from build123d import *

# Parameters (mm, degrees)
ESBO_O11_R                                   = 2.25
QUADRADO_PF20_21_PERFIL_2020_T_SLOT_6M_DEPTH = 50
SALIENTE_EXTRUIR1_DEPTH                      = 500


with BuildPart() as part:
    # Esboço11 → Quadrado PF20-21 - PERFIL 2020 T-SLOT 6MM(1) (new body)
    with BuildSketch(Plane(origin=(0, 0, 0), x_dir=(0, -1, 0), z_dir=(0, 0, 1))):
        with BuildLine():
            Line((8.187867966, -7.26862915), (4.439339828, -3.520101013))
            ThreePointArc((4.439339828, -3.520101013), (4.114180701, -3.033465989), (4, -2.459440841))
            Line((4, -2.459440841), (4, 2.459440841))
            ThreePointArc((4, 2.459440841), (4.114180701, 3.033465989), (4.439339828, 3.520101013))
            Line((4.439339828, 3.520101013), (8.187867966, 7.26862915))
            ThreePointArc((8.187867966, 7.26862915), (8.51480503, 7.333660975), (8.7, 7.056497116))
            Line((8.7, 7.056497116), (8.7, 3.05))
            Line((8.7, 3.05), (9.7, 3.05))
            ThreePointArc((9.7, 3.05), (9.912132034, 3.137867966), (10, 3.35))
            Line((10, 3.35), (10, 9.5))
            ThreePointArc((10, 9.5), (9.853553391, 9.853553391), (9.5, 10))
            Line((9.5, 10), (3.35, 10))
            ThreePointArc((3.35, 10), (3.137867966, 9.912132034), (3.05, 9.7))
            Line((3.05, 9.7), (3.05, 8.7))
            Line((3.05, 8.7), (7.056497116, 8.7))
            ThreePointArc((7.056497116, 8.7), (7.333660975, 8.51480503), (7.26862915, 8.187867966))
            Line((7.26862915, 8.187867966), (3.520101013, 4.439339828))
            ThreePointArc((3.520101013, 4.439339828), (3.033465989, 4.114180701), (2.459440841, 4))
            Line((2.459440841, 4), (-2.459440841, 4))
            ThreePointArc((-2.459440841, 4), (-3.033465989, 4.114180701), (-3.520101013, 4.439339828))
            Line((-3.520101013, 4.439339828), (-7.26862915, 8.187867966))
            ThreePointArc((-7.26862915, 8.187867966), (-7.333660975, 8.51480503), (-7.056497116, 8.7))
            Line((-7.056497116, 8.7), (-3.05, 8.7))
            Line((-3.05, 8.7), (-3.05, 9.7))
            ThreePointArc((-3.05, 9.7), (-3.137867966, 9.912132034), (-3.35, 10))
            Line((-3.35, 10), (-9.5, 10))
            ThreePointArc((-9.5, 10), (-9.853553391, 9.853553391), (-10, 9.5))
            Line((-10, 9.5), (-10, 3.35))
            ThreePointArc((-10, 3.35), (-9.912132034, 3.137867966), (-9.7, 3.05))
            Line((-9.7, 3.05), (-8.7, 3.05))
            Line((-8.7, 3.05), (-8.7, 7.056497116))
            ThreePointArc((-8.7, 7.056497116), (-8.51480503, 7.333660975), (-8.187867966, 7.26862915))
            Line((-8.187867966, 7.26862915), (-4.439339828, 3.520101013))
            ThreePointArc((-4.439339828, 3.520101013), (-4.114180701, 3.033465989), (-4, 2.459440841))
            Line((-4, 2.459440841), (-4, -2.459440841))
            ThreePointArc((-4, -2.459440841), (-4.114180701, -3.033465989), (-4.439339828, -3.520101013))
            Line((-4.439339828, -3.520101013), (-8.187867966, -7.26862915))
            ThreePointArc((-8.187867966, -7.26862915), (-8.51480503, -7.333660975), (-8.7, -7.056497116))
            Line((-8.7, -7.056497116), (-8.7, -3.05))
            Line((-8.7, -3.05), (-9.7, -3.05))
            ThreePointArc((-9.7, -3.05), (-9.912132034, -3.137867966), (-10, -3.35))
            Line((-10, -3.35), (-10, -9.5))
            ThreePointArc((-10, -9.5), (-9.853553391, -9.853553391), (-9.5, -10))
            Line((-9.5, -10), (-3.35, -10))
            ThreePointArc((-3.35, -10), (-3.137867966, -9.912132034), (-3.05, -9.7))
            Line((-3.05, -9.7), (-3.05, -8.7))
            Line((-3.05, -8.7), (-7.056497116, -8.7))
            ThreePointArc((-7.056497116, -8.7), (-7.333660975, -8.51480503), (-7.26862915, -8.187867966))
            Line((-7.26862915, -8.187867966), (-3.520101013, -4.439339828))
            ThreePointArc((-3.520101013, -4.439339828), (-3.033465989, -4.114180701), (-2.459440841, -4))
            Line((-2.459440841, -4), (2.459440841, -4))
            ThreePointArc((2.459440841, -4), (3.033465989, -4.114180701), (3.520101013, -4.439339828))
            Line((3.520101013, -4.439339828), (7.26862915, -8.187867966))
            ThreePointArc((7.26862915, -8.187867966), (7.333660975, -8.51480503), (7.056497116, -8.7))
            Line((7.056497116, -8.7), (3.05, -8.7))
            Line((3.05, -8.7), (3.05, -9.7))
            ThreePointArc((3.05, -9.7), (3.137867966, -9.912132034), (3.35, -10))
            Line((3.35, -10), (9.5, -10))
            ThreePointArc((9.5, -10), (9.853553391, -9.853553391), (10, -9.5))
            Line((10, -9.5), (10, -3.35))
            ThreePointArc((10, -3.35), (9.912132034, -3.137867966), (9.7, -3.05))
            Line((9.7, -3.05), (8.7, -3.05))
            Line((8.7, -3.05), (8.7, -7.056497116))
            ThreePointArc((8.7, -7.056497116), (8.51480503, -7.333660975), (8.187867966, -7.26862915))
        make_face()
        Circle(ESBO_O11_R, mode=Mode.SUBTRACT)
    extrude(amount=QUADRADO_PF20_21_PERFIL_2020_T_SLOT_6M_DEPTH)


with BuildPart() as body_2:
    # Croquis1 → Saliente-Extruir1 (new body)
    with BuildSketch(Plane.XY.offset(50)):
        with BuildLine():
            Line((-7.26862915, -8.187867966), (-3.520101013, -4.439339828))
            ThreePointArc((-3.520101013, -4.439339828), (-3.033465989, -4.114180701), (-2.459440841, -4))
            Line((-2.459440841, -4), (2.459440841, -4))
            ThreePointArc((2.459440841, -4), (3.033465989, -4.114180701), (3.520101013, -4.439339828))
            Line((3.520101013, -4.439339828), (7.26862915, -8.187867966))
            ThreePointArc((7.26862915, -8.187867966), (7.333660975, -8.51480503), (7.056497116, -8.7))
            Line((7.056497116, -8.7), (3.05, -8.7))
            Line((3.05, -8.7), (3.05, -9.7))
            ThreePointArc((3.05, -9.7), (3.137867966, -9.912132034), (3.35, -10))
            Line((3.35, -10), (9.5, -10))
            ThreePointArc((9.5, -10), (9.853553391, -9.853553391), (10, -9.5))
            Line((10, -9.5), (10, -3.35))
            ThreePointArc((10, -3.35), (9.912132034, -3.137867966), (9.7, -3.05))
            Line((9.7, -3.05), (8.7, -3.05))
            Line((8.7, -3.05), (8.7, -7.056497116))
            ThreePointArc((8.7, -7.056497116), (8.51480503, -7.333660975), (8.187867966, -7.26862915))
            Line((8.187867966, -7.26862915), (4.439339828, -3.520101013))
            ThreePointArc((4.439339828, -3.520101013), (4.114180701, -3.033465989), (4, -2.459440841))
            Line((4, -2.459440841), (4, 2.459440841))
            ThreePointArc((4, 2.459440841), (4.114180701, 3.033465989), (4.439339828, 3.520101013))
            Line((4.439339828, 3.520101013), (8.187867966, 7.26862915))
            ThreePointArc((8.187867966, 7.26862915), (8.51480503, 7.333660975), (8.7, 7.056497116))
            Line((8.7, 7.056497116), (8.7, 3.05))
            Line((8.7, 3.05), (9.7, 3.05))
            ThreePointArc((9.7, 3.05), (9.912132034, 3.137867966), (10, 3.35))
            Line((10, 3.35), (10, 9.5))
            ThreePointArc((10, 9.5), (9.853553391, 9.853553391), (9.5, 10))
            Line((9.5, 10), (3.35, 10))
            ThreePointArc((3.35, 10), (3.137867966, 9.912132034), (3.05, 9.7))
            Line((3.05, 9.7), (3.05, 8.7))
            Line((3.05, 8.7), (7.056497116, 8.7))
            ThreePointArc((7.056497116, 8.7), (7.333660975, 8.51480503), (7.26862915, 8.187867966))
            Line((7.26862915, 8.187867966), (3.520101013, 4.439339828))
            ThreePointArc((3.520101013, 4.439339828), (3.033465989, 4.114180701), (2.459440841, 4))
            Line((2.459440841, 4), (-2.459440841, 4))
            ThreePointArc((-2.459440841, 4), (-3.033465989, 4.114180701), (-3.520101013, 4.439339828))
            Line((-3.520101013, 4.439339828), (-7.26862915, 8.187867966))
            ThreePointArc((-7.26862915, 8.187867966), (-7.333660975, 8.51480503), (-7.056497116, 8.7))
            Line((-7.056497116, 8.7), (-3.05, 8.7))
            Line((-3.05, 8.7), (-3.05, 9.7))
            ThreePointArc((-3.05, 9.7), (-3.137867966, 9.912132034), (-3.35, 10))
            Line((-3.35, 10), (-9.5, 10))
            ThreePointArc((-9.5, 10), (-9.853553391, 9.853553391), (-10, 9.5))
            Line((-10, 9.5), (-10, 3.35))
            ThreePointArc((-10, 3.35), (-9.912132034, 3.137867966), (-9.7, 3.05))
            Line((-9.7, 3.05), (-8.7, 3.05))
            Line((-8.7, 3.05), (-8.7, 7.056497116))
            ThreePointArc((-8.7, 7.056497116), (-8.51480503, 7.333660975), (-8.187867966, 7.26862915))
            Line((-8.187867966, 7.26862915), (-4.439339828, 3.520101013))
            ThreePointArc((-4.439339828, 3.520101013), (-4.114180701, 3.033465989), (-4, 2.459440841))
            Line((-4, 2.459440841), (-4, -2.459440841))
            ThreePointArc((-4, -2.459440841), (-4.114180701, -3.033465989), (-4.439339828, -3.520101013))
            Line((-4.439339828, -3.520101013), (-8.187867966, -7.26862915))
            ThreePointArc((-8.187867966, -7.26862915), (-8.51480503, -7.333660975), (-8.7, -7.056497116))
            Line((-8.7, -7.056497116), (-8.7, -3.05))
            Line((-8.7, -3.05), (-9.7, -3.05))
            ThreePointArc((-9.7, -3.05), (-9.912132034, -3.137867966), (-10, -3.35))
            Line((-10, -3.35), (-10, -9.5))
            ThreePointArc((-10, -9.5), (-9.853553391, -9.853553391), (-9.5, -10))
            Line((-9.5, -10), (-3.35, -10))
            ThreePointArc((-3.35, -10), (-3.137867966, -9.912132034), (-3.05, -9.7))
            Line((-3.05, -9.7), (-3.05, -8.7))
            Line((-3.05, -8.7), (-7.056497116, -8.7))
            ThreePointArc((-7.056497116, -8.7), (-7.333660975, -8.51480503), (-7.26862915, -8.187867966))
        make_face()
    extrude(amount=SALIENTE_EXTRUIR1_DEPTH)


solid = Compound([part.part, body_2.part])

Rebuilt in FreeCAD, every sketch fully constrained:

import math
import FreeCAD as App
import Part
import Sketcher
from FreeCAD import Vector
Q = App.Units.Quantity

doc = App.newDocument("Part")
body = doc.addObject("PartDesign::Body", "Body")

# Sketch on XY plane
sketch1 = body.newObject("Sketcher::SketchObject", "Sketch")
sketch1.AttachmentSupport = (doc.getObject("XY_Plane"), [""])
sketch1.MapMode = "FlatFace"
sketch1.addGeometry([
    Part.LineSegment(Vector(-7.27, -8.19, 0), Vector(-3.52, -4.44, 0)),  # 0
    Part.ArcOfCircle(Part.Circle(Vector(-2.46, -5.5, 0), Vector(0, 0, 1), 1.5), math.radians(90), math.radians(135)),  # 1
    Part.LineSegment(Vector(-2.46, -4, 0), Vector(2.46, -4, 0)),  # 2
    Part.ArcOfCircle(Part.Circle(Vector(2.46, -5.5, 0), Vector(0, 0, 1), 1.5), math.radians(45), math.radians(90)),  # 3
    Part.LineSegment(Vector(3.52, -4.44, 0), Vector(7.27, -8.19, 0)),  # 4
    Part.ArcOfCircle(Part.Circle(Vector(7.06, -8.4, 0), Vector(0, 0, 1), 0.3), math.radians(-90), math.radians(45)),  # 5
    Part.LineSegment(Vector(7.06, -8.7, 0), Vector(3.05, -8.7, 0)),  # 6
    Part.LineSegment(Vector(3.05, -8.7, 0), Vector(3.05, -9.7, 0)),  # 7
    Part.ArcOfCircle(Part.Circle(Vector(3.35, -9.7, 0), Vector(0, 0, 1), 0.3), math.radians(-180), math.radians(-90)),  # 8
    Part.LineSegment(Vector(3.35, -10, 0), Vector(9.5, -10, 0)),  # 9
    Part.ArcOfCircle(Part.Circle(Vector(9.5, -9.5, 0), Vector(0, 0, 1), 0.5), math.radians(-90), math.radians(0)),  # 10
    Part.LineSegment(Vector(10, -9.5, 0), Vector(10, -3.35, 0)),  # 11
    Part.ArcOfCircle(Part.Circle(Vector(9.7, -3.35, 0), Vector(0, 0, 1), 0.3), math.radians(0), math.radians(90)),  # 12
    Part.LineSegment(Vector(9.7, -3.05, 0), Vector(8.7, -3.05, 0)),  # 13
    Part.LineSegment(Vector(8.7, -3.05, 0), Vector(8.7, -7.06, 0)),  # 14
    Part.ArcOfCircle(Part.Circle(Vector(8.4, -7.06, 0), Vector(0, 0, 1), 0.3), math.radians(-135), math.radians(0)),  # 15
    Part.LineSegment(Vector(8.19, -7.27, 0), Vector(4.44, -3.52, 0)),  # 16
    Part.ArcOfCircle(Part.Circle(Vector(5.5, -2.46, 0), Vector(0, 0, 1), 1.5), math.radians(180), math.radians(225)),  # 17
    Part.LineSegment(Vector(4, -2.46, 0), Vector(4, 2.46, 0)),  # 18
    Part.ArcOfCircle(Part.Circle(Vector(5.5, 2.46, 0), Vector(0, 0, 1), 1.5), math.radians(135), math.radians(180)),  # 19
    Part.LineSegment(Vector(4.44, 3.52, 0), Vector(8.19, 7.27, 0)),  # 20
    Part.ArcOfCircle(Part.Circle(Vector(8.4, 7.06, 0), Vector(0, 0, 1), 0.3), math.radians(0), math.radians(135)),  # 21
    Part.LineSegment(Vector(8.7, 7.06, 0), Vector(8.7, 3.05, 0)),  # 22
    Part.LineSegment(Vector(8.7, 3.05, 0), Vector(9.7, 3.05, 0)),  # 23
    Part.ArcOfCircle(Part.Circle(Vector(9.7, 3.35, 0), Vector(0, 0, 1), 0.3), math.radians(-90), math.radians(0)),  # 24
    Part.LineSegment(Vector(10, 3.35, 0), Vector(10, 9.5, 0)),  # 25
    Part.ArcOfCircle(Part.Circle(Vector(9.5, 9.5, 0), Vector(0, 0, 1), 0.5), math.radians(0), math.radians(90)),  # 26
    Part.LineSegment(Vector(9.5, 10, 0), Vector(3.35, 10, 0)),  # 27
    Part.ArcOfCircle(Part.Circle(Vector(3.35, 9.7, 0), Vector(0, 0, 1), 0.3), math.radians(90), math.radians(180)),  # 28
    Part.LineSegment(Vector(3.05, 9.7, 0), Vector(3.05, 8.7, 0)),  # 29
    Part.LineSegment(Vector(3.05, 8.7, 0), Vector(7.06, 8.7, 0)),  # 30
    Part.ArcOfCircle(Part.Circle(Vector(7.06, 8.4, 0), Vector(0, 0, 1), 0.3), math.radians(-45), math.radians(90)),  # 31
    Part.LineSegment(Vector(7.27, 8.19, 0), Vector(3.52, 4.44, 0)),  # 32
    Part.ArcOfCircle(Part.Circle(Vector(2.46, 5.5, 0), Vector(0, 0, 1), 1.5), math.radians(-90), math.radians(-45)),  # 33
    Part.LineSegment(Vector(2.46, 4, 0), Vector(-2.46, 4, 0)),  # 34
    Part.ArcOfCircle(Part.Circle(Vector(-2.46, 5.5, 0), Vector(0, 0, 1), 1.5), math.radians(-135), math.radians(-90)),  # 35
    Part.LineSegment(Vector(-3.52, 4.44, 0), Vector(-7.27, 8.19, 0)),  # 36
    Part.ArcOfCircle(Part.Circle(Vector(-7.06, 8.4, 0), Vector(0, 0, 1), 0.3), math.radians(90), math.radians(225)),  # 37
    Part.LineSegment(Vector(-7.06, 8.7, 0), Vector(-3.05, 8.7, 0)),  # 38
    Part.LineSegment(Vector(-3.05, 8.7, 0), Vector(-3.05, 9.7, 0)),  # 39
    Part.ArcOfCircle(Part.Circle(Vector(-3.35, 9.7, 0), Vector(0, 0, 1), 0.3), math.radians(0), math.radians(90)),  # 40
    Part.LineSegment(Vector(-3.35, 10, 0), Vector(-9.5, 10, 0)),  # 41
    Part.ArcOfCircle(Part.Circle(Vector(-9.5, 9.5, 0), Vector(0, 0, 1), 0.5), math.radians(90), math.radians(180)),  # 42
    Part.LineSegment(Vector(-10, 9.5, 0), Vector(-10, 3.35, 0)),  # 43
    Part.ArcOfCircle(Part.Circle(Vector(-9.7, 3.35, 0), Vector(0, 0, 1), 0.3), math.radians(-180), math.radians(-90)),  # 44
    Part.LineSegment(Vector(-9.7, 3.05, 0), Vector(-8.7, 3.05, 0)),  # 45
    Part.LineSegment(Vector(-8.7, 3.05, 0), Vector(-8.7, 7.06, 0)),  # 46
    Part.ArcOfCircle(Part.Circle(Vector(-8.4, 7.06, 0), Vector(0, 0, 1), 0.3), math.radians(45), math.radians(180)),  # 47
    Part.LineSegment(Vector(-8.19, 7.27, 0), Vector(-4.44, 3.52, 0)),  # 48
    Part.ArcOfCircle(Part.Circle(Vector(-5.5, 2.46, 0), Vector(0, 0, 1), 1.5), math.radians(0), math.radians(45)),  # 49
    Part.LineSegment(Vector(-4, 2.46, 0), Vector(-4, -2.46, 0)),  # 50
    Part.ArcOfCircle(Part.Circle(Vector(-5.5, -2.46, 0), Vector(0, 0, 1), 1.5), math.radians(-45), math.radians(0)),  # 51
    Part.LineSegment(Vector(-4.44, -3.52, 0), Vector(-8.19, -7.27, 0)),  # 52
    Part.ArcOfCircle(Part.Circle(Vector(-8.4, -7.06, 0), Vector(0, 0, 1), 0.3), math.radians(-180), math.radians(-45)),  # 53
    Part.LineSegment(Vector(-8.7, -7.06, 0), Vector(-8.7, -3.05, 0)),  # 54
    Part.LineSegment(Vector(-8.7, -3.05, 0), Vector(-9.7, -3.05, 0)),  # 55
    Part.ArcOfCircle(Part.Circle(Vector(-9.7, -3.35, 0), Vector(0, 0, 1), 0.3), math.radians(90), math.radians(180)),  # 56
    Part.LineSegment(Vector(-10, -3.35, 0), Vector(-10, -9.5, 0)),  # 57
    Part.ArcOfCircle(Part.Circle(Vector(-9.5, -9.5, 0), Vector(0, 0, 1), 0.5), math.radians(180), math.radians(270)),  # 58
    Part.LineSegment(Vector(-9.5, -10, 0), Vector(-3.35, -10, 0)),  # 59
    Part.ArcOfCircle(Part.Circle(Vector(-3.35, -9.7, 0), Vector(0, 0, 1), 0.3), math.radians(-90), math.radians(0)),  # 60
    Part.LineSegment(Vector(-3.05, -9.7, 0), Vector(-3.05, -8.7, 0)),  # 61
    Part.LineSegment(Vector(-3.05, -8.7, 0), Vector(-7.06, -8.7, 0)),  # 62
    Part.ArcOfCircle(Part.Circle(Vector(-7.06, -8.4, 0), Vector(0, 0, 1), 0.3), math.radians(135), math.radians(270)),  # 63
    Part.Circle(Vector(0, 0, 0), Vector(0, 0, 1), 2.25),  # 64
], False)
sketch1.addConstraint([
    Sketcher.Constraint("Tangent", 0, 2, 1, 2),
    Sketcher.Constraint("Tangent", 1, 1, 2, 1),
    Sketcher.Constraint("Tangent", 2, 2, 3, 2),
    Sketcher.Constraint("Tangent", 3, 1, 4, 1),
    Sketcher.Constraint("Tangent", 4, 2, 5, 2),
    Sketcher.Constraint("Tangent", 5, 1, 6, 1),
    Sketcher.Constraint("Coincident", 6, 2, 7, 1),
    Sketcher.Constraint("Tangent", 7, 2, 8, 1),
    Sketcher.Constraint("Tangent", 8, 2, 9, 1),
    Sketcher.Constraint("Tangent", 9, 2, 10, 1),
    Sketcher.Constraint("Tangent", 10, 2, 11, 1),
    Sketcher.Constraint("Tangent", 11, 2, 12, 1),
    Sketcher.Constraint("Tangent", 12, 2, 13, 1),
    Sketcher.Constraint("Coincident", 13, 2, 14, 1),
    Sketcher.Constraint("Tangent", 14, 2, 15, 2),
    Sketcher.Constraint("Tangent", 15, 1, 16, 1),
    Sketcher.Constraint("Tangent", 16, 2, 17, 2),
    Sketcher.Constraint("Tangent", 17, 1, 18, 1),
    Sketcher.Constraint("Tangent", 18, 2, 19, 2),
    Sketcher.Constraint("Tangent", 19, 1, 20, 1),
    Sketcher.Constraint("Tangent", 20, 2, 21, 2),
    Sketcher.Constraint("Tangent", 21, 1, 22, 1),
    Sketcher.Constraint("Coincident", 22, 2, 23, 1),
    Sketcher.Constraint("Tangent", 23, 2, 24, 1),
    Sketcher.Constraint("Tangent", 24, 2, 25, 1),
    Sketcher.Constraint("Tangent", 25, 2, 26, 1),
    Sketcher.Constraint("Tangent", 26, 2, 27, 1),
    Sketcher.Constraint("Tangent", 27, 2, 28, 1),
    Sketcher.Constraint("Tangent", 28, 2, 29, 1),
    Sketcher.Constraint("Coincident", 29, 2, 30, 1),
    Sketcher.Constraint("Tangent", 30, 2, 31, 2),
    Sketcher.Constraint("Tangent", 31, 1, 32, 1),
    Sketcher.Constraint("Tangent", 32, 2, 33, 2),
    Sketcher.Constraint("Tangent", 33, 1, 34, 1),
    Sketcher.Constraint("Tangent", 34, 2, 35, 2),
    Sketcher.Constraint("Tangent", 35, 1, 36, 1),
    Sketcher.Constraint("Tangent", 36, 2, 37, 2),
    Sketcher.Constraint("Tangent", 37, 1, 38, 1),
    Sketcher.Constraint("Coincident", 38, 2, 39, 1),
    Sketcher.Constraint("Tangent", 39, 2, 40, 1),
    Sketcher.Constraint("Tangent", 40, 2, 41, 1),
    Sketcher.Constraint("Tangent", 41, 2, 42, 1),
    Sketcher.Constraint("Tangent", 42, 2, 43, 1),
    Sketcher.Constraint("Tangent", 43, 2, 44, 1),
    Sketcher.Constraint("Tangent", 44, 2, 45, 1),
    Sketcher.Constraint("Coincident", 45, 2, 46, 1),
    Sketcher.Constraint("Tangent", 46, 2, 47, 2),
    Sketcher.Constraint("Tangent", 47, 1, 48, 1),
    Sketcher.Constraint("Tangent", 48, 2, 49, 2),
    Sketcher.Constraint("Tangent", 49, 1, 50, 1),
    Sketcher.Constraint("Tangent", 50, 2, 51, 2),
    Sketcher.Constraint("Tangent", 51, 1, 52, 1),
    Sketcher.Constraint("Tangent", 52, 2, 53, 2),
    Sketcher.Constraint("Tangent", 53, 1, 54, 1),
    Sketcher.Constraint("Coincident", 54, 2, 55, 1),
    Sketcher.Constraint("Tangent", 55, 2, 56, 1),
    Sketcher.Constraint("Tangent", 56, 2, 57, 1),
    Sketcher.Constraint("Tangent", 57, 2, 58, 1),
    Sketcher.Constraint("Tangent", 58, 2, 59, 1),
    Sketcher.Constraint("Tangent", 59, 2, 60, 1),
    Sketcher.Constraint("Tangent", 60, 2, 61, 1),
    Sketcher.Constraint("Coincident", 61, 2, 62, 1),
    Sketcher.Constraint("Tangent", 62, 2, 63, 2),
    Sketcher.Constraint("Tangent", 63, 1, 0, 1),
    Sketcher.Constraint("Horizontal", 2),
    Sketcher.Constraint("Horizontal", 6),
    Sketcher.Constraint("Vertical", 7),
    Sketcher.Constraint("Horizontal", 9),
    Sketcher.Constraint("Vertical", 11),
    Sketcher.Constraint("Horizontal", 13),
    Sketcher.Constraint("Vertical", 14),
    Sketcher.Constraint("Vertical", 18),
    Sketcher.Constraint("Vertical", 22),
    Sketcher.Constraint("Horizontal", 23),
    Sketcher.Constraint("Vertical", 25),
    Sketcher.Constraint("Horizontal", 27),
    Sketcher.Constraint("Vertical", 29),
    Sketcher.Constraint("Horizontal", 30),
    Sketcher.Constraint("Horizontal", 34),
    Sketcher.Constraint("Horizontal", 38),
    Sketcher.Constraint("Vertical", 39),
    Sketcher.Constraint("Horizontal", 41),
    Sketcher.Constraint("Vertical", 43),
    Sketcher.Constraint("Horizontal", 45),
    Sketcher.Constraint("Vertical", 46),
    Sketcher.Constraint("Vertical", 50),
    Sketcher.Constraint("Vertical", 54),
    Sketcher.Constraint("Horizontal", 55),
    Sketcher.Constraint("Vertical", 57),
    Sketcher.Constraint("Horizontal", 59),
    Sketcher.Constraint("Vertical", 61),
    Sketcher.Constraint("Horizontal", 62),
    Sketcher.Constraint("Coincident", 64, 3, -1, 1),
    Sketcher.Constraint("Equal", 1, 3),
    Sketcher.Constraint("Equal", 5, 8),
    Sketcher.Constraint("Equal", 8, 12),
    Sketcher.Constraint("Equal", 12, 15),
    Sketcher.Constraint("Equal", 3, 17),
    Sketcher.Constraint("Equal", 17, 19),
    Sketcher.Constraint("Equal", 15, 21),
    Sketcher.Constraint("Equal", 21, 24),
    Sketcher.Constraint("Equal", 10, 26),
    Sketcher.Constraint("Equal", 24, 28),
    Sketcher.Constraint("Equal", 28, 31),
    Sketcher.Constraint("Equal", 19, 33),
    Sketcher.Constraint("Equal", 33, 35),
    Sketcher.Constraint("Equal", 31, 37),
    Sketcher.Constraint("Equal", 37, 40),
    Sketcher.Constraint("Equal", 26, 42),
    Sketcher.Constraint("Equal", 40, 44),
    Sketcher.Constraint("Equal", 44, 47),
    Sketcher.Constraint("Equal", 35, 49),
    Sketcher.Constraint("Equal", 49, 51),
    Sketcher.Constraint("Equal", 47, 53),
    Sketcher.Constraint("Equal", 53, 56),
    Sketcher.Constraint("Equal", 42, 58),
    Sketcher.Constraint("Equal", 56, 60),
    Sketcher.Constraint("Equal", 60, 63),
    Sketcher.Constraint("Symmetric", 1, 3, 33, 3, -1, 1),
    Sketcher.Constraint("Symmetric", 5, 3, 37, 3, -1, 1),
    Sketcher.Constraint("Symmetric", 8, 3, 40, 3, -1, 1),
    Sketcher.Constraint("Symmetric", 12, 3, 44, 3, -1, 1),
    Sketcher.Constraint("Symmetric", 15, 3, 47, 3, -1, 1),
    Sketcher.Constraint("Symmetric", 17, 3, 49, 3, -1, 1),
    Sketcher.Constraint("Symmetric", 21, 3, 53, 3, -1, 1),
    Sketcher.Constraint("Symmetric", 24, 3, 56, 3, -1, 1),
    Sketcher.Constraint("Symmetric", 28, 3, 60, 3, -1, 1),
    Sketcher.Constraint("Symmetric", 31, 3, 63, 3, -1, 1),
    Sketcher.Constraint("Symmetric", 31, 3, 37, 3, -2),
    Sketcher.Constraint("Symmetric", 28, 3, 40, 3, -2),
    Sketcher.Constraint("Symmetric", 24, 3, 44, 3, -2),
    Sketcher.Constraint("Symmetric", 21, 3, 47, 3, -2),
    Sketcher.Constraint("Perpendicular", 0, 4),
    Sketcher.Constraint("Parallel", 4, 16),
    Sketcher.Constraint("Perpendicular", 16, 20),
    Sketcher.Constraint("Perpendicular", 32, 36),
    Sketcher.Constraint("Perpendicular", 48, 52),
    Sketcher.Constraint("Horizontal", 19, 3, 49, 3),
    Sketcher.Constraint("Equal", 55, 7),
    Sketcher.Constraint("Equal", 59, 11),
    Sketcher.Constraint("Equal", 62, 14),
    Sketcher.Constraint("Equal", 34, 18),
    Sketcher.Constraint("Equal", 4, 16),
    Sketcher.Constraint("Diameter", 64, Q("4.5 mm")),
    Sketcher.Constraint("Radius", 1, Q("1.5 mm")),
    Sketcher.Constraint("Radius", 5, Q("0.3 mm")),
    Sketcher.Constraint("Radius", 10, Q("0.5 mm")),
    Sketcher.Constraint("DistanceX", 13, 2, 13, 1, Q("1 mm")),
    Sketcher.Constraint("DistanceY", 1, 1, -1, 1, Q("4 mm")),
    Sketcher.Constraint("DistanceY", 8, 2, -1, 1, Q("10 mm")),
    Sketcher.Constraint("DistanceX", 9, 1, 9, 2, Q("6.15 mm")),
    Sketcher.Constraint("DistanceX", 2, 1, 2, 2, Q("4.918882 mm")),
])
pad1 = body.newObject("PartDesign::Pad", "Pad")
pad1.Profile = sketch1
pad1.Length = 50
body2 = doc.addObject("PartDesign::Body", "Body001")

# Sketch on XY plane
sketch2 = body2.newObject("Sketcher::SketchObject", "Sketch001")
sketch2.AttachmentSupport = (doc.getObject("XY_Plane001"), [""])
sketch2.MapMode = "FlatFace"
sketch2.AttachmentOffset = App.Placement(Vector(0, 0, 50), App.Rotation())
sketch2.addGeometry([
    Part.LineSegment(Vector(-7.27, -8.19, 0), Vector(-3.52, -4.44, 0)),  # 0
    Part.ArcOfCircle(Part.Circle(Vector(-2.46, -5.5, 0), Vector(0, 0, 1), 1.5), math.radians(90), math.radians(135)),  # 1
    Part.LineSegment(Vector(-2.46, -4, 0), Vector(2.46, -4, 0)),  # 2
    Part.ArcOfCircle(Part.Circle(Vector(2.46, -5.5, 0), Vector(0, 0, 1), 1.5), math.radians(45), math.radians(90)),  # 3
    Part.LineSegment(Vector(3.52, -4.44, 0), Vector(7.27, -8.19, 0)),  # 4
    Part.ArcOfCircle(Part.Circle(Vector(7.06, -8.4, 0), Vector(0, 0, 1), 0.3), math.radians(-90), math.radians(45)),  # 5
    Part.LineSegment(Vector(7.06, -8.7, 0), Vector(3.05, -8.7, 0)),  # 6
    Part.LineSegment(Vector(3.05, -8.7, 0), Vector(3.05, -9.7, 0)),  # 7
    Part.ArcOfCircle(Part.Circle(Vector(3.35, -9.7, 0), Vector(0, 0, 1), 0.3), math.radians(-180), math.radians(-90)),  # 8
    Part.LineSegment(Vector(3.35, -10, 0), Vector(9.5, -10, 0)),  # 9
    Part.ArcOfCircle(Part.Circle(Vector(9.5, -9.5, 0), Vector(0, 0, 1), 0.5), math.radians(-90), math.radians(0)),  # 10
    Part.LineSegment(Vector(10, -9.5, 0), Vector(10, -3.35, 0)),  # 11
    Part.ArcOfCircle(Part.Circle(Vector(9.7, -3.35, 0), Vector(0, 0, 1), 0.3), math.radians(0), math.radians(90)),  # 12
    Part.LineSegment(Vector(9.7, -3.05, 0), Vector(8.7, -3.05, 0)),  # 13
    Part.LineSegment(Vector(8.7, -3.05, 0), Vector(8.7, -7.06, 0)),  # 14
    Part.ArcOfCircle(Part.Circle(Vector(8.4, -7.06, 0), Vector(0, 0, 1), 0.3), math.radians(-135), math.radians(0)),  # 15
    Part.LineSegment(Vector(8.19, -7.27, 0), Vector(4.44, -3.52, 0)),  # 16
    Part.ArcOfCircle(Part.Circle(Vector(5.5, -2.46, 0), Vector(0, 0, 1), 1.5), math.radians(180), math.radians(225)),  # 17
    Part.LineSegment(Vector(4, -2.46, 0), Vector(4, 2.46, 0)),  # 18
    Part.ArcOfCircle(Part.Circle(Vector(5.5, 2.46, 0), Vector(0, 0, 1), 1.5), math.radians(135), math.radians(180)),  # 19
    Part.LineSegment(Vector(4.44, 3.52, 0), Vector(8.19, 7.27, 0)),  # 20
    Part.ArcOfCircle(Part.Circle(Vector(8.4, 7.06, 0), Vector(0, 0, 1), 0.3), math.radians(0), math.radians(135)),  # 21
    Part.LineSegment(Vector(8.7, 7.06, 0), Vector(8.7, 3.05, 0)),  # 22
    Part.LineSegment(Vector(8.7, 3.05, 0), Vector(9.7, 3.05, 0)),  # 23
    Part.ArcOfCircle(Part.Circle(Vector(9.7, 3.35, 0), Vector(0, 0, 1), 0.3), math.radians(-90), math.radians(0)),  # 24
    Part.LineSegment(Vector(10, 3.35, 0), Vector(10, 9.5, 0)),  # 25
    Part.ArcOfCircle(Part.Circle(Vector(9.5, 9.5, 0), Vector(0, 0, 1), 0.5), math.radians(0), math.radians(90)),  # 26
    Part.LineSegment(Vector(9.5, 10, 0), Vector(3.35, 10, 0)),  # 27
    Part.ArcOfCircle(Part.Circle(Vector(3.35, 9.7, 0), Vector(0, 0, 1), 0.3), math.radians(90), math.radians(180)),  # 28
    Part.LineSegment(Vector(3.05, 9.7, 0), Vector(3.05, 8.7, 0)),  # 29
    Part.LineSegment(Vector(3.05, 8.7, 0), Vector(7.06, 8.7, 0)),  # 30
    Part.ArcOfCircle(Part.Circle(Vector(7.06, 8.4, 0), Vector(0, 0, 1), 0.3), math.radians(-45), math.radians(90)),  # 31
    Part.LineSegment(Vector(7.27, 8.19, 0), Vector(3.52, 4.44, 0)),  # 32
    Part.ArcOfCircle(Part.Circle(Vector(2.46, 5.5, 0), Vector(0, 0, 1), 1.5), math.radians(-90), math.radians(-45)),  # 33
    Part.LineSegment(Vector(2.46, 4, 0), Vector(-2.46, 4, 0)),  # 34
    Part.ArcOfCircle(Part.Circle(Vector(-2.46, 5.5, 0), Vector(0, 0, 1), 1.5), math.radians(-135), math.radians(-90)),  # 35
    Part.LineSegment(Vector(-3.52, 4.44, 0), Vector(-7.27, 8.19, 0)),  # 36
    Part.ArcOfCircle(Part.Circle(Vector(-7.06, 8.4, 0), Vector(0, 0, 1), 0.3), math.radians(90), math.radians(225)),  # 37
    Part.LineSegment(Vector(-7.06, 8.7, 0), Vector(-3.05, 8.7, 0)),  # 38
    Part.LineSegment(Vector(-3.05, 8.7, 0), Vector(-3.05, 9.7, 0)),  # 39
    Part.ArcOfCircle(Part.Circle(Vector(-3.35, 9.7, 0), Vector(0, 0, 1), 0.3), math.radians(0), math.radians(90)),  # 40
    Part.LineSegment(Vector(-3.35, 10, 0), Vector(-9.5, 10, 0)),  # 41
    Part.ArcOfCircle(Part.Circle(Vector(-9.5, 9.5, 0), Vector(0, 0, 1), 0.5), math.radians(90), math.radians(180)),  # 42
    Part.LineSegment(Vector(-10, 9.5, 0), Vector(-10, 3.35, 0)),  # 43
    Part.ArcOfCircle(Part.Circle(Vector(-9.7, 3.35, 0), Vector(0, 0, 1), 0.3), math.radians(-180), math.radians(-90)),  # 44
    Part.LineSegment(Vector(-9.7, 3.05, 0), Vector(-8.7, 3.05, 0)),  # 45
    Part.LineSegment(Vector(-8.7, 3.05, 0), Vector(-8.7, 7.06, 0)),  # 46
    Part.ArcOfCircle(Part.Circle(Vector(-8.4, 7.06, 0), Vector(0, 0, 1), 0.3), math.radians(45), math.radians(180)),  # 47
    Part.LineSegment(Vector(-8.19, 7.27, 0), Vector(-4.44, 3.52, 0)),  # 48
    Part.ArcOfCircle(Part.Circle(Vector(-5.5, 2.46, 0), Vector(0, 0, 1), 1.5), math.radians(0), math.radians(45)),  # 49
    Part.LineSegment(Vector(-4, 2.46, 0), Vector(-4, -2.46, 0)),  # 50
    Part.ArcOfCircle(Part.Circle(Vector(-5.5, -2.46, 0), Vector(0, 0, 1), 1.5), math.radians(-45), math.radians(0)),  # 51
    Part.LineSegment(Vector(-4.44, -3.52, 0), Vector(-8.19, -7.27, 0)),  # 52
    Part.ArcOfCircle(Part.Circle(Vector(-8.4, -7.06, 0), Vector(0, 0, 1), 0.3), math.radians(-180), math.radians(-45)),  # 53
    Part.LineSegment(Vector(-8.7, -7.06, 0), Vector(-8.7, -3.05, 0)),  # 54
    Part.LineSegment(Vector(-8.7, -3.05, 0), Vector(-9.7, -3.05, 0)),  # 55
    Part.ArcOfCircle(Part.Circle(Vector(-9.7, -3.35, 0), Vector(0, 0, 1), 0.3), math.radians(90), math.radians(180)),  # 56
    Part.LineSegment(Vector(-10, -3.35, 0), Vector(-10, -9.5, 0)),  # 57
    Part.ArcOfCircle(Part.Circle(Vector(-9.5, -9.5, 0), Vector(0, 0, 1), 0.5), math.radians(180), math.radians(270)),  # 58
    Part.LineSegment(Vector(-9.5, -10, 0), Vector(-3.35, -10, 0)),  # 59
    Part.ArcOfCircle(Part.Circle(Vector(-3.35, -9.7, 0), Vector(0, 0, 1), 0.3), math.radians(-90), math.radians(0)),  # 60
    Part.LineSegment(Vector(-3.05, -9.7, 0), Vector(-3.05, -8.7, 0)),  # 61
    Part.LineSegment(Vector(-3.05, -8.7, 0), Vector(-7.06, -8.7, 0)),  # 62
    Part.ArcOfCircle(Part.Circle(Vector(-7.06, -8.4, 0), Vector(0, 0, 1), 0.3), math.radians(135), math.radians(270)),  # 63
], False)
sketch2.addConstraint([
    Sketcher.Constraint("Tangent", 0, 2, 1, 2),
    Sketcher.Constraint("Tangent", 1, 1, 2, 1),
    Sketcher.Constraint("Tangent", 2, 2, 3, 2),
    Sketcher.Constraint("Tangent", 3, 1, 4, 1),
    Sketcher.Constraint("Tangent", 4, 2, 5, 2),
    Sketcher.Constraint("Tangent", 5, 1, 6, 1),
    Sketcher.Constraint("Coincident", 6, 2, 7, 1),
    Sketcher.Constraint("Tangent", 7, 2, 8, 1),
    Sketcher.Constraint("Tangent", 8, 2, 9, 1),
    Sketcher.Constraint("Tangent", 9, 2, 10, 1),
    Sketcher.Constraint("Tangent", 10, 2, 11, 1),
    Sketcher.Constraint("Tangent", 11, 2, 12, 1),
    Sketcher.Constraint("Tangent", 12, 2, 13, 1),
    Sketcher.Constraint("Coincident", 13, 2, 14, 1),
    Sketcher.Constraint("Tangent", 14, 2, 15, 2),
    Sketcher.Constraint("Tangent", 15, 1, 16, 1),
    Sketcher.Constraint("Tangent", 16, 2, 17, 2),
    Sketcher.Constraint("Tangent", 17, 1, 18, 1),
    Sketcher.Constraint("Tangent", 18, 2, 19, 2),
    Sketcher.Constraint("Tangent", 19, 1, 20, 1),
    Sketcher.Constraint("Tangent", 20, 2, 21, 2),
    Sketcher.Constraint("Tangent", 21, 1, 22, 1),
    Sketcher.Constraint("Coincident", 22, 2, 23, 1),
    Sketcher.Constraint("Tangent", 23, 2, 24, 1),
    Sketcher.Constraint("Tangent", 24, 2, 25, 1),
    Sketcher.Constraint("Tangent", 25, 2, 26, 1),
    Sketcher.Constraint("Tangent", 26, 2, 27, 1),
    Sketcher.Constraint("Tangent", 27, 2, 28, 1),
    Sketcher.Constraint("Tangent", 28, 2, 29, 1),
    Sketcher.Constraint("Coincident", 29, 2, 30, 1),
    Sketcher.Constraint("Tangent", 30, 2, 31, 2),
    Sketcher.Constraint("Tangent", 31, 1, 32, 1),
    Sketcher.Constraint("Tangent", 32, 2, 33, 2),
    Sketcher.Constraint("Tangent", 33, 1, 34, 1),
    Sketcher.Constraint("Tangent", 34, 2, 35, 2),
    Sketcher.Constraint("Tangent", 35, 1, 36, 1),
    Sketcher.Constraint("Tangent", 36, 2, 37, 2),
    Sketcher.Constraint("Tangent", 37, 1, 38, 1),
    Sketcher.Constraint("Coincident", 38, 2, 39, 1),
    Sketcher.Constraint("Tangent", 39, 2, 40, 1),
    Sketcher.Constraint("Tangent", 40, 2, 41, 1),
    Sketcher.Constraint("Tangent", 41, 2, 42, 1),
    Sketcher.Constraint("Tangent", 42, 2, 43, 1),
    Sketcher.Constraint("Tangent", 43, 2, 44, 1),
    Sketcher.Constraint("Tangent", 44, 2, 45, 1),
    Sketcher.Constraint("Coincident", 45, 2, 46, 1),
    Sketcher.Constraint("Tangent", 46, 2, 47, 2),
    Sketcher.Constraint("Tangent", 47, 1, 48, 1),
    Sketcher.Constraint("Tangent", 48, 2, 49, 2),
    Sketcher.Constraint("Tangent", 49, 1, 50, 1),
    Sketcher.Constraint("Tangent", 50, 2, 51, 2),
    Sketcher.Constraint("Tangent", 51, 1, 52, 1),
    Sketcher.Constraint("Tangent", 52, 2, 53, 2),
    Sketcher.Constraint("Tangent", 53, 1, 54, 1),
    Sketcher.Constraint("Coincident", 54, 2, 55, 1),
    Sketcher.Constraint("Tangent", 55, 2, 56, 1),
    Sketcher.Constraint("Tangent", 56, 2, 57, 1),
    Sketcher.Constraint("Tangent", 57, 2, 58, 1),
    Sketcher.Constraint("Tangent", 58, 2, 59, 1),
    Sketcher.Constraint("Tangent", 59, 2, 60, 1),
    Sketcher.Constraint("Tangent", 60, 2, 61, 1),
    Sketcher.Constraint("Coincident", 61, 2, 62, 1),
    Sketcher.Constraint("Tangent", 62, 2, 63, 2),
    Sketcher.Constraint("Tangent", 63, 1, 0, 1),
    Sketcher.Constraint("Horizontal", 2),
    Sketcher.Constraint("Horizontal", 6),
    Sketcher.Constraint("Vertical", 7),
    Sketcher.Constraint("Horizontal", 9),
    Sketcher.Constraint("Vertical", 11),
    Sketcher.Constraint("Horizontal", 13),
    Sketcher.Constraint("Vertical", 14),
    Sketcher.Constraint("Vertical", 18),
    Sketcher.Constraint("Vertical", 22),
    Sketcher.Constraint("Horizontal", 23),
    Sketcher.Constraint("Vertical", 25),
    Sketcher.Constraint("Horizontal", 27),
    Sketcher.Constraint("Vertical", 29),
    Sketcher.Constraint("Horizontal", 30),
    Sketcher.Constraint("Horizontal", 34),
    Sketcher.Constraint("Horizontal", 38),
    Sketcher.Constraint("Vertical", 39),
    Sketcher.Constraint("Horizontal", 41),
    Sketcher.Constraint("Vertical", 43),
    Sketcher.Constraint("Horizontal", 45),
    Sketcher.Constraint("Vertical", 46),
    Sketcher.Constraint("Vertical", 50),
    Sketcher.Constraint("Vertical", 54),
    Sketcher.Constraint("Horizontal", 55),
    Sketcher.Constraint("Vertical", 57),
    Sketcher.Constraint("Horizontal", 59),
    Sketcher.Constraint("Vertical", 61),
    Sketcher.Constraint("Horizontal", 62),
    Sketcher.Constraint("Equal", 1, 3),
    Sketcher.Constraint("Equal", 5, 8),
    Sketcher.Constraint("Equal", 8, 12),
    Sketcher.Constraint("Equal", 12, 15),
    Sketcher.Constraint("Equal", 3, 17),
    Sketcher.Constraint("Equal", 17, 19),
    Sketcher.Constraint("Equal", 15, 21),
    Sketcher.Constraint("Equal", 21, 24),
    Sketcher.Constraint("Equal", 10, 26),
    Sketcher.Constraint("Equal", 24, 28),
    Sketcher.Constraint("Equal", 28, 31),
    Sketcher.Constraint("Equal", 19, 33),
    Sketcher.Constraint("Equal", 33, 35),
    Sketcher.Constraint("Equal", 31, 37),
    Sketcher.Constraint("Equal", 37, 40),
    Sketcher.Constraint("Equal", 26, 42),
    Sketcher.Constraint("Equal", 40, 44),
    Sketcher.Constraint("Equal", 44, 47),
    Sketcher.Constraint("Equal", 35, 49),
    Sketcher.Constraint("Equal", 49, 51),
    Sketcher.Constraint("Equal", 47, 53),
    Sketcher.Constraint("Equal", 53, 56),
    Sketcher.Constraint("Equal", 42, 58),
    Sketcher.Constraint("Equal", 56, 60),
    Sketcher.Constraint("Equal", 60, 63),
    Sketcher.Constraint("Symmetric", 1, 3, 33, 3, -1, 1),
    Sketcher.Constraint("Symmetric", 5, 3, 37, 3, -1, 1),
    Sketcher.Constraint("Symmetric", 8, 3, 40, 3, -1, 1),
    Sketcher.Constraint("Symmetric", 12, 3, 44, 3, -1, 1),
    Sketcher.Constraint("Symmetric", 15, 3, 47, 3, -1, 1),
    Sketcher.Constraint("Symmetric", 17, 3, 49, 3, -1, 1),
    Sketcher.Constraint("Symmetric", 21, 3, 53, 3, -1, 1),
    Sketcher.Constraint("Symmetric", 24, 3, 56, 3, -1, 1),
    Sketcher.Constraint("Symmetric", 28, 3, 60, 3, -1, 1),
    Sketcher.Constraint("Symmetric", 31, 3, 63, 3, -1, 1),
    Sketcher.Constraint("Symmetric", 31, 3, 37, 3, -2),
    Sketcher.Constraint("Symmetric", 28, 3, 40, 3, -2),
    Sketcher.Constraint("Symmetric", 24, 3, 44, 3, -2),
    Sketcher.Constraint("Symmetric", 21, 3, 47, 3, -2),
    Sketcher.Constraint("Perpendicular", 0, 4),
    Sketcher.Constraint("Parallel", 4, 16),
    Sketcher.Constraint("Perpendicular", 16, 20),
    Sketcher.Constraint("Perpendicular", 32, 36),
    Sketcher.Constraint("Perpendicular", 48, 52),
    Sketcher.Constraint("Horizontal", 19, 3, 49, 3),
    Sketcher.Constraint("Equal", 55, 7),
    Sketcher.Constraint("Equal", 59, 11),
    Sketcher.Constraint("Equal", 62, 14),
    Sketcher.Constraint("Equal", 34, 18),
    Sketcher.Constraint("Equal", 4, 16),
    Sketcher.Constraint("Radius", 1, Q("1.5 mm")),
    Sketcher.Constraint("Radius", 5, Q("0.3 mm")),
    Sketcher.Constraint("Radius", 10, Q("0.5 mm")),
    Sketcher.Constraint("DistanceX", 13, 2, 13, 1, Q("1 mm")),
    Sketcher.Constraint("DistanceY", 1, 1, -1, 1, Q("4 mm")),
    Sketcher.Constraint("DistanceY", 8, 2, -1, 1, Q("10 mm")),
    Sketcher.Constraint("DistanceX", 9, 1, 9, 2, Q("6.15 mm")),
    Sketcher.Constraint("DistanceX", 2, 1, 2, 2, Q("4.918882 mm")),
])
pad2 = body2.newObject("PartDesign::Pad", "Pad001")
pad2.Profile = sketch2
pad2.Length = 500

doc.recompute()
